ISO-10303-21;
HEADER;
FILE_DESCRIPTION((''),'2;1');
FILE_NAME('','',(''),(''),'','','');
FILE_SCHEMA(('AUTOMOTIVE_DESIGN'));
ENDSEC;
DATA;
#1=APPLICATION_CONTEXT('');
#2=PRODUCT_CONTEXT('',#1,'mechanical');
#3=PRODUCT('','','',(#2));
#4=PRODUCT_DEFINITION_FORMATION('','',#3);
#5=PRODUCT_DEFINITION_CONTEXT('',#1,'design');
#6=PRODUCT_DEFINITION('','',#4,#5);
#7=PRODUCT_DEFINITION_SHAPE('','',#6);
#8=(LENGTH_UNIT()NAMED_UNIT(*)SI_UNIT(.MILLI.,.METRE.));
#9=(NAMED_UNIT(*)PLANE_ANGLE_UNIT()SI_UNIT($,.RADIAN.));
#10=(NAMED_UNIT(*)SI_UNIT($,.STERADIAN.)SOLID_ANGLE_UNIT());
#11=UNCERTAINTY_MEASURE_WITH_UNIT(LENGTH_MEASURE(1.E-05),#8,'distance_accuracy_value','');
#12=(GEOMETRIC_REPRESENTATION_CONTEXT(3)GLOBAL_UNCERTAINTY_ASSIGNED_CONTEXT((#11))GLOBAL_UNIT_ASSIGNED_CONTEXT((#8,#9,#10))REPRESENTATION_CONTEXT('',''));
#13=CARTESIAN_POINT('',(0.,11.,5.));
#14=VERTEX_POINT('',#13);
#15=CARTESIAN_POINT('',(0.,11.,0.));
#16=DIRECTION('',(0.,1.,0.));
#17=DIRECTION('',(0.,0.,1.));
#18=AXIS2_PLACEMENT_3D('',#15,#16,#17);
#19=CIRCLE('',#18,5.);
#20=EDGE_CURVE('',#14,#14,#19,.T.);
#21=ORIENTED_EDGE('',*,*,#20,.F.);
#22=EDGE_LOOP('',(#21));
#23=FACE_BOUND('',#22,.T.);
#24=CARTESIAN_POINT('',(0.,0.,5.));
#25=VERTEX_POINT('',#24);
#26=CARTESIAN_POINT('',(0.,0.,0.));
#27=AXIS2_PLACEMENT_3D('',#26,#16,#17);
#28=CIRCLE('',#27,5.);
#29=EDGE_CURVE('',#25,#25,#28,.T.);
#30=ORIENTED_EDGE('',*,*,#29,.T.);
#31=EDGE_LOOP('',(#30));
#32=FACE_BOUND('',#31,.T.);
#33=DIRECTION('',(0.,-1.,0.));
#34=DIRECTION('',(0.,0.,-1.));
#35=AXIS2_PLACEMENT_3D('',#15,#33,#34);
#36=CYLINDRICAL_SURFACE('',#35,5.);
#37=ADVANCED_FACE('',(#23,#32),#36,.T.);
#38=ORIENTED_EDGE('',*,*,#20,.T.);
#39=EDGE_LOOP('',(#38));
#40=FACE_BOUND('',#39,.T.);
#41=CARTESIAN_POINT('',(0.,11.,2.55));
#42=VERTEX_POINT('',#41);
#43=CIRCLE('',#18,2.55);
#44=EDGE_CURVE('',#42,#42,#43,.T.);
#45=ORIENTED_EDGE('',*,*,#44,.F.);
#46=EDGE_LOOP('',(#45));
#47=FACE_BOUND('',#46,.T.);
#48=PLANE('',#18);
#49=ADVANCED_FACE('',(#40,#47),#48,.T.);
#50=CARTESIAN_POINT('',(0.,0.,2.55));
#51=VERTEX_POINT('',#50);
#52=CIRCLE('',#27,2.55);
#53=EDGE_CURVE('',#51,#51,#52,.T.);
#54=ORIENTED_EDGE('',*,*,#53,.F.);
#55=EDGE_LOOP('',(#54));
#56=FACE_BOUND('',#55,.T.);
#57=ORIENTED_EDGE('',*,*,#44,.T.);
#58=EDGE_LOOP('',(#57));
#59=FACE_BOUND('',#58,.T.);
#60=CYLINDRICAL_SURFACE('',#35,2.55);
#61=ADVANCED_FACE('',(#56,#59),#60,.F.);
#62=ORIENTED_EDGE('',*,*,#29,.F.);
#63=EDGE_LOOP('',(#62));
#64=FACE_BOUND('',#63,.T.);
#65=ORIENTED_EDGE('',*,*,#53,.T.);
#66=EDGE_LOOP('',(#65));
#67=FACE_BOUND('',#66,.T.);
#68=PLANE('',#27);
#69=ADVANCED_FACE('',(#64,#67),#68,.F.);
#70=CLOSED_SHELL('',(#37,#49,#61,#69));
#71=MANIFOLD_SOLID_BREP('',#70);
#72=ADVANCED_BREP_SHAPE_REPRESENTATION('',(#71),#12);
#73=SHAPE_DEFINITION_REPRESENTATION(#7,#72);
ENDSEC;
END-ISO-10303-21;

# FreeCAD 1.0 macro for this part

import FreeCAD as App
import Part
import Sketcher
from FreeCAD import Vector
Q = App.Units.Quantity

doc = App.newDocument("Part")
body = doc.addObject("PartDesign::Body", "Body")

sketch1 = body.newObject("Sketcher::SketchObject", "Sketch")
sketch1.AttachmentSupport = (doc.getObject("XZ_Plane"), [""])
sketch1.MapMode = "FlatFace"
sketch1.addGeometry([
    Part.Circle(Vector(0, 0, 0), Vector(0, 0, 1), 5),
    Part.Circle(Vector(0, 0, 0), Vector(0, 0, 1), 2.55),
], False)
sketch1.addConstraint([
    Sketcher.Constraint("Coincident", 0, 3, -1, 1),
    Sketcher.Constraint("Coincident", 1, 3, -1, 1),
    Sketcher.Constraint("Diameter", 0, Q("10 mm")),
    Sketcher.Constraint("Diameter", 1, Q("5.1 mm")),
])
pad1 = body.newObject("PartDesign::Pad", "Pad")
pad1.Profile = sketch1
pad1.Length = 11
pad1.Reversed = True

doc.recompute()
